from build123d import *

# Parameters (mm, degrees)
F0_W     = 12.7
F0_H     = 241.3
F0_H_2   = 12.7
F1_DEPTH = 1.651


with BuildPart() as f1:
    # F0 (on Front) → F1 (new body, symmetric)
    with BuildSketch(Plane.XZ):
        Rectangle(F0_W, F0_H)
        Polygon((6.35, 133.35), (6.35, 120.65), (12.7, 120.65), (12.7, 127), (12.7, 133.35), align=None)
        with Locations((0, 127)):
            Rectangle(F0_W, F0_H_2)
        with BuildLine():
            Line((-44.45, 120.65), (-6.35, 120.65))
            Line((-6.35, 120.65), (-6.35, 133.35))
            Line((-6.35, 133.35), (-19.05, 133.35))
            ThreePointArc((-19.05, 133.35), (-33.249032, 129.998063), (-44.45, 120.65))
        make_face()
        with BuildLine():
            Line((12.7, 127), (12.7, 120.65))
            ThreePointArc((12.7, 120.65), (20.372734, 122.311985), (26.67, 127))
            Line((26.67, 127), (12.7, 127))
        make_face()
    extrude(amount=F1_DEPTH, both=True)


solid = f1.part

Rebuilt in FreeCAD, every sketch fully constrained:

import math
import FreeCAD as App
import Part
import Sketcher
Q = App.Units.Quantity

doc = App.newDocument("Part")
body = doc.addObject("PartDesign::Body", "Body")

# Sketch on XZ plane
sketch1 = doc.addObject("Sketcher::SketchObject", "Sketch")
body.addObject(sketch1)
sketch1.AttachmentSupport = (doc.XZ_Plane, [""])
sketch1.MapMode = "FlatFace"
sketch1.addGeometry([
    Part.LineSegment(App.Vector(-6, -121, 0), App.Vector(6, -121, 0)),  # 0
    Part.LineSegment(App.Vector(6, -121, 0), App.Vector(6, 121, 0)),  # 1
    Part.LineSegment(App.Vector(6, 121, 0), App.Vector(13, 121, 0)),  # 2
    Part.ArcOfCircle(Part.Circle(App.Vector(13, 139, 0), App.Vector(0, 0, 1), 19), math.radians(-90), math.radians(-41)),  # 3
    Part.LineSegment(App.Vector(27, 127, 0), App.Vector(13, 127, 0)),  # 4
    Part.LineSegment(App.Vector(13, 127, 0), App.Vector(13, 133, 0)),  # 5
    Part.LineSegment(App.Vector(13, 133, 0), App.Vector(-19, 133, 0)),  # 6
    Part.ArcOfCircle(Part.Circle(App.Vector(-19, 102, 0), App.Vector(0, 0, 1), 32), math.radians(90), math.radians(143)),  # 7
    Part.LineSegment(App.Vector(-44, 121, 0), App.Vector(-6, 121, 0)),  # 8
    Part.LineSegment(App.Vector(-6, 121, 0), App.Vector(-6, -121, 0)),  # 9
], False)
sketch1.addConstraint([
    Sketcher.Constraint("Coincident", 0, 2, 1, 1),
    Sketcher.Constraint("Coincident", 1, 2, 2, 1),
    Sketcher.Constraint("Tangent", 2, 2, 3, 1),
    Sketcher.Constraint("Coincident", 3, 2, 4, 1),
    Sketcher.Constraint("Coincident", 4, 2, 5, 1),
    Sketcher.Constraint("Coincident", 5, 2, 6, 1),
    Sketcher.Constraint("Tangent", 6, 2, 7, 1),
    Sketcher.Constraint("Coincident", 7, 2, 8, 1),
    Sketcher.Constraint("Coincident", 8, 2, 9, 1),
    Sketcher.Constraint("Coincident", 9, 2, 0, 1),
    Sketcher.Constraint("Horizontal", 0),
    Sketcher.Constraint("Vertical", 1),
    Sketcher.Constraint("Horizontal", 2),
    Sketcher.Constraint("Horizontal", 4),
    Sketcher.Constraint("Vertical", 5),
    Sketcher.Constraint("Horizontal", 6),
    Sketcher.Constraint("Horizontal", 8),
    Sketcher.Constraint("Vertical", 9),
    Sketcher.Constraint("Symmetric", 0, 2, 8, 2, -1, 1),
    Sketcher.Constraint("Horizontal", 2, 2, 7, 2),
    Sketcher.Constraint("Vertical", 2, 2, 4, 2),
    Sketcher.Constraint("Equal", 2, 5),
    Sketcher.Constraint("Radius", 3, Q("0.7300001 in")),
    Sketcher.Constraint("Radius", 7, Q("1.25 in")),
    Sketcher.Constraint("DistanceX", 0, 1, 0, 2, Q("0.5 in")),
    Sketcher.Constraint("DistanceX", 8, 1, 8, 2, Q("1.5 in")),
    Sketcher.Constraint("DistanceY", 1, 1, 1, 2, Q("9.5 in")),
    Sketcher.Constraint("DistanceY", -1, 1, 7, 3, Q("4 in")),
    Sketcher.Constraint("DistanceY", -1, 1, 3, 2, Q("5 in")),
])
pad1 = doc.addObject("PartDesign::Pad", "Pad")
body.addObject(pad1)
pad1.Profile = sketch1
pad1.Length = Q("0.13 in")
pad1.Midplane = True

doc.recompute()
